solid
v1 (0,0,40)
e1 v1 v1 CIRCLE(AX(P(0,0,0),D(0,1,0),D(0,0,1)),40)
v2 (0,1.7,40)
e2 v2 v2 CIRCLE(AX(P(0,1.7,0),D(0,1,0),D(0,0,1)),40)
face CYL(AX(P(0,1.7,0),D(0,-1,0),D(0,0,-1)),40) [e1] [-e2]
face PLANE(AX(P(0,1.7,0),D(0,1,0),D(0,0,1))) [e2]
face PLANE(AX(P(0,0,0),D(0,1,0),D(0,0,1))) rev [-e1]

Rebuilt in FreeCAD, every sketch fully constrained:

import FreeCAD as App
import Part
import Sketcher

V = App.Vector

doc = App.newDocument("Part")
body = doc.addObject("PartDesign::Body", "Body")

# Sketch on XZ plane
sketch1 = doc.addObject("Sketcher::SketchObject", "Sketch")
body.addObject(sketch1)
sketch1.AttachmentSupport = (doc.XZ_Plane, [""])
sketch1.MapMode = "FlatFace"
sketch1.addGeometry(Part.Circle(V(0, 0, 0), V(0, 0, 1), 40), False)
sketch1.addConstraint(Sketcher.Constraint("Coincident", 0, 3, -1, 1))
sketch1.addConstraint(Sketcher.Constraint("Diameter", 0, 80.0))
pad1 = doc.addObject("PartDesign::Pad", "Pad")
body.addObject(pad1)
pad1.Profile = sketch1
pad1.Length = 1.7
pad1.Reversed = True

doc.recompute()
